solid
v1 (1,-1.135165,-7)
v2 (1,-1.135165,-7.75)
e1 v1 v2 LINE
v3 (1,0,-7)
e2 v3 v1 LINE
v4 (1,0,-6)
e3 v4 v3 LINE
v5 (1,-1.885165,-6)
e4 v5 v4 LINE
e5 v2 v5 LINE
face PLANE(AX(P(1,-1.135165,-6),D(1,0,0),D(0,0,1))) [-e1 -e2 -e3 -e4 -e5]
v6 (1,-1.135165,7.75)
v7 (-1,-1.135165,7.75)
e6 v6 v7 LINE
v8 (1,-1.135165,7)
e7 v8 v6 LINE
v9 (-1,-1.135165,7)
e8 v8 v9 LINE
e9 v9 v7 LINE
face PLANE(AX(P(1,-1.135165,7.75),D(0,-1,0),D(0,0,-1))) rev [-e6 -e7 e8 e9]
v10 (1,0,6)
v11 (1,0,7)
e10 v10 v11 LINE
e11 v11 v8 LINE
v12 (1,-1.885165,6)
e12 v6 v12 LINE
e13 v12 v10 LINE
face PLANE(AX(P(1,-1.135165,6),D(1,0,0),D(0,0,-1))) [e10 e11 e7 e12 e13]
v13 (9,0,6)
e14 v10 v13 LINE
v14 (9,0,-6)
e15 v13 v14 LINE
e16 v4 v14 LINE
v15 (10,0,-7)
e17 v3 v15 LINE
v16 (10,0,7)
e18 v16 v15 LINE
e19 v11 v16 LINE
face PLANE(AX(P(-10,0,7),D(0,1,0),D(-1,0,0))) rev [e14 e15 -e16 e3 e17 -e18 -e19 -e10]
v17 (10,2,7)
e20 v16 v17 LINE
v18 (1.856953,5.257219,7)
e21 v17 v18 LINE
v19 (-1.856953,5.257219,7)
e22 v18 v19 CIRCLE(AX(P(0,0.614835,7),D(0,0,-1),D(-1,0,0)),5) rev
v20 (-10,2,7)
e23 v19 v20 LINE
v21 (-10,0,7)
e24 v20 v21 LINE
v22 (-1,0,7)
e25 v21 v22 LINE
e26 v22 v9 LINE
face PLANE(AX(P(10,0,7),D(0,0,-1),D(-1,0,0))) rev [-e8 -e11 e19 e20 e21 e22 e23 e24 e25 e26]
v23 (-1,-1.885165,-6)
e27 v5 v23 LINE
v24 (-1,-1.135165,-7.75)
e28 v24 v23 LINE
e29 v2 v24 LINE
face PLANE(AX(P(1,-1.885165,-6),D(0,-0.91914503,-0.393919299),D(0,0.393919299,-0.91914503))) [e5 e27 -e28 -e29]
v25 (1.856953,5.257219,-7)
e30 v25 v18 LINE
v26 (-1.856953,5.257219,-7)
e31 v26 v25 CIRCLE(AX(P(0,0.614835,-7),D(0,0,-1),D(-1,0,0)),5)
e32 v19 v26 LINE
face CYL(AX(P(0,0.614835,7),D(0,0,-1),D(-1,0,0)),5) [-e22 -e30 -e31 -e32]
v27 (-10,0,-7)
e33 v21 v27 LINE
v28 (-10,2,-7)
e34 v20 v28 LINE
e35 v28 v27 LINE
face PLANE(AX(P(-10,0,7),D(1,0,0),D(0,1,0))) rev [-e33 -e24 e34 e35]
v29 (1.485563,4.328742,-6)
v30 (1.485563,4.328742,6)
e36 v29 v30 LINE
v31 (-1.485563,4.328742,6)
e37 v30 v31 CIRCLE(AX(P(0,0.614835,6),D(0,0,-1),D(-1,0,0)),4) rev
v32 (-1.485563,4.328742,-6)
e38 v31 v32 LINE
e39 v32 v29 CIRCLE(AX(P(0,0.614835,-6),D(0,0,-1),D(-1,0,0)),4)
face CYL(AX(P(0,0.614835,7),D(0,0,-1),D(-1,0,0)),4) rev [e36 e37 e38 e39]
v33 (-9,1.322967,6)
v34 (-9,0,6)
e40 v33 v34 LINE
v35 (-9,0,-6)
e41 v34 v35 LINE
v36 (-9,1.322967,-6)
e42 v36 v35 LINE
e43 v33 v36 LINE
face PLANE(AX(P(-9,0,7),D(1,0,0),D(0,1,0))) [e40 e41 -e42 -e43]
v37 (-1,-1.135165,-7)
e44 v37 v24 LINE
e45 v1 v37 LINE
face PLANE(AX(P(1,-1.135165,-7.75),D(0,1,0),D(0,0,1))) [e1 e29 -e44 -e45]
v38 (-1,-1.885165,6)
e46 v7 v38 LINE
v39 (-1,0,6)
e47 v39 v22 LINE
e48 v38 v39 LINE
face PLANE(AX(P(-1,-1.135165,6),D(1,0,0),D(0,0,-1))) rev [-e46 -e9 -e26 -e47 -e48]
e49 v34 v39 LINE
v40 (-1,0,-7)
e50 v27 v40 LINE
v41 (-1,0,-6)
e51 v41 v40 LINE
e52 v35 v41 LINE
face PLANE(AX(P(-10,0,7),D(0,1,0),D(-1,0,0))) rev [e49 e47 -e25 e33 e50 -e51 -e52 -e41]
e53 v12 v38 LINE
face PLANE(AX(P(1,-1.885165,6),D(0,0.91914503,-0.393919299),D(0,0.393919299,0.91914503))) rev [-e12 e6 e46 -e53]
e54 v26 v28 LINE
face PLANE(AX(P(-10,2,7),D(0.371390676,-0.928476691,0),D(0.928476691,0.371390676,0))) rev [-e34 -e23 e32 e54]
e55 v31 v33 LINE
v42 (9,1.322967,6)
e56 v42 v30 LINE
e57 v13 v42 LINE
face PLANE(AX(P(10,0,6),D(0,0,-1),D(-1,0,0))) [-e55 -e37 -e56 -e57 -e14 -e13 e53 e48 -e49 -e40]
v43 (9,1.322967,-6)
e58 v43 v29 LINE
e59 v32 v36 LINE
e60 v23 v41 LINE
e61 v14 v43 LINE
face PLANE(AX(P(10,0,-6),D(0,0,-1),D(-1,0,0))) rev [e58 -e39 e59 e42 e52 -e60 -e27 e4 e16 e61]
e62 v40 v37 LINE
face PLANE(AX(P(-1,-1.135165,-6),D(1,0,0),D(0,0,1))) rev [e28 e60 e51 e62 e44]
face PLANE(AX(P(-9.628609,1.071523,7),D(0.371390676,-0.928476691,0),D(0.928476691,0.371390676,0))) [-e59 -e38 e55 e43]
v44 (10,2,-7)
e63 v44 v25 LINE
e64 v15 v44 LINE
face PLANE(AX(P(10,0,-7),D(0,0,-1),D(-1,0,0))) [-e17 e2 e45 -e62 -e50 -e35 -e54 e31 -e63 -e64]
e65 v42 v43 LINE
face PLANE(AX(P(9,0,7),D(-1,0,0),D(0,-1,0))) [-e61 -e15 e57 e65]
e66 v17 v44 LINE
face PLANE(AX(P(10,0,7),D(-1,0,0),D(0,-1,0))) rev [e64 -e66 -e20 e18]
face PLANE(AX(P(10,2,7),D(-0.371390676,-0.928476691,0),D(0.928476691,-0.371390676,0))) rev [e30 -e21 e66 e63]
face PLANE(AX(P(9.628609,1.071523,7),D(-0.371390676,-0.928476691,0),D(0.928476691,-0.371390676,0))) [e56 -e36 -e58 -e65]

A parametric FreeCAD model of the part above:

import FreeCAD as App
import Part
import Sketcher

V = App.Vector


def edges_at(feature, points):
    """Names of the edges that pass closest to the given points."""
    edges = feature.Shape.Edges
    near = lambda p: min(range(len(edges)), key=lambda i: edges[i].distToShape(Part.Vertex(*p))[0])
    return sorted({f"Edge{near(p) + 1}" for p in points})


def faces_at(feature, points):
    """Names of the faces that lie closest to the given points."""
    faces = feature.Shape.Faces
    near = lambda p: min(range(len(faces)), key=lambda i: faces[i].distToShape(Part.Vertex(*p))[0])
    return sorted({f"Face{near(p) + 1}" for p in points})


def add_polygon(sketch, points):
    """Adds a closed chain of lines whose ends are joined by coincident constraints."""
    first, n = sketch.GeometryCount, len(points)
    for a, b in zip(points, points[1:] + points[:1]):
        sketch.addGeometry(Part.LineSegment(App.Vector(*a, 0), App.Vector(*b, 0)), False)
    for i in range(n):
        sketch.addConstraint(Sketcher.Constraint("Coincident", first + i, 2, first + (i + 1) % n, 1))

doc = App.newDocument("Part")
body = doc.addObject("PartDesign::Body", "Body")

sketch1 = body.newObject("Sketcher::SketchObject", "Sketch")
sketch1.AttachmentSupport = (doc.getObject("XY_Plane"), [""])
sketch1.MapMode = "FlatFace"
add_polygon(sketch1, [(-10, 0), (10, 0), (10, 2), (0, 6), (-10, 2)])
sketch1.addConstraint([
    Sketcher.Constraint("Horizontal", 0),
    Sketcher.Constraint("Vertical", 1),
    Sketcher.Constraint("Vertical", 4),
    Sketcher.Constraint("Symmetric", 0, 2, 4, 2, -1, 1),
    Sketcher.Constraint("PointOnObject", 2, 2, -2),
    Sketcher.Constraint("Horizontal", 1, 2, 3, 2),
    Sketcher.Constraint("DistanceX", 0, 1, 0, 2, 20.0),
    Sketcher.Constraint("DistanceY", 1, 1, 1, 2, 2.0),
    Sketcher.Constraint("DistanceY", -1, 1, 2, 2, 6.0),
])
pad1 = body.newObject("PartDesign::Pad", "Pad")
pad1.Profile = sketch1
pad1.Length = 14
pad1.Midplane = True
doc.recompute()

fillet = body.newObject("PartDesign::Fillet", "Fillet")
fillet.Base = (pad1, edges_at(pad1, [(0, 6, 0)]))
fillet.Radius = 5
doc.recompute()

thickness = body.newObject("PartDesign::Thickness", "Thickness")
thickness.Base = (fillet, faces_at(fillet, [(0, 0, 0)]))
thickness.Value = 1
thickness.Reversed = True
thickness.Join = "Intersection"

sketch2 = body.newObject("Sketcher::SketchObject", "Sketch001")
sketch2.AttachmentSupport = (doc.getObject("YZ_Plane"), [""])
sketch2.MapMode = "FlatFace"
add_polygon(sketch2, [(0, 6), (0, 7), (-1.1, 7), (-1.1, 7.8), (-1.9, 6)])
sketch2.addConstraint([
    Sketcher.Constraint("Vertical", 0),
    Sketcher.Constraint("Horizontal", 1),
    Sketcher.Constraint("Vertical", 2),
    Sketcher.Constraint("Horizontal", 4),
    Sketcher.Constraint("PointOnObject", 0, 2, -2),
    Sketcher.Constraint("DistanceY", 0, 1, 0, 2, 1.0),
    Sketcher.Constraint("DistanceY", -1, 1, 0, 2, 7.0),
    Sketcher.Constraint("DistanceY", 2, 1, 2, 2, 0.75),
    Sketcher.Constraint("DistanceX", 3, 2, 1, 2, 0.75),
    Sketcher.Constraint("DistanceX", 1, 2, 1, 1, 1.135165),
])
pad2 = body.newObject("PartDesign::Pad", "Pad001")
pad2.Profile = sketch2
pad2.Length = 2
pad2.Midplane = True
doc.recompute()

mirrored = body.newObject("PartDesign::Mirrored", "Mirrored")
mirrored.Originals = [pad2]
mirrored.MirrorPlane = (doc.getObject("XY_Plane"), [""])
body.Tip = mirrored

doc.recompute()
